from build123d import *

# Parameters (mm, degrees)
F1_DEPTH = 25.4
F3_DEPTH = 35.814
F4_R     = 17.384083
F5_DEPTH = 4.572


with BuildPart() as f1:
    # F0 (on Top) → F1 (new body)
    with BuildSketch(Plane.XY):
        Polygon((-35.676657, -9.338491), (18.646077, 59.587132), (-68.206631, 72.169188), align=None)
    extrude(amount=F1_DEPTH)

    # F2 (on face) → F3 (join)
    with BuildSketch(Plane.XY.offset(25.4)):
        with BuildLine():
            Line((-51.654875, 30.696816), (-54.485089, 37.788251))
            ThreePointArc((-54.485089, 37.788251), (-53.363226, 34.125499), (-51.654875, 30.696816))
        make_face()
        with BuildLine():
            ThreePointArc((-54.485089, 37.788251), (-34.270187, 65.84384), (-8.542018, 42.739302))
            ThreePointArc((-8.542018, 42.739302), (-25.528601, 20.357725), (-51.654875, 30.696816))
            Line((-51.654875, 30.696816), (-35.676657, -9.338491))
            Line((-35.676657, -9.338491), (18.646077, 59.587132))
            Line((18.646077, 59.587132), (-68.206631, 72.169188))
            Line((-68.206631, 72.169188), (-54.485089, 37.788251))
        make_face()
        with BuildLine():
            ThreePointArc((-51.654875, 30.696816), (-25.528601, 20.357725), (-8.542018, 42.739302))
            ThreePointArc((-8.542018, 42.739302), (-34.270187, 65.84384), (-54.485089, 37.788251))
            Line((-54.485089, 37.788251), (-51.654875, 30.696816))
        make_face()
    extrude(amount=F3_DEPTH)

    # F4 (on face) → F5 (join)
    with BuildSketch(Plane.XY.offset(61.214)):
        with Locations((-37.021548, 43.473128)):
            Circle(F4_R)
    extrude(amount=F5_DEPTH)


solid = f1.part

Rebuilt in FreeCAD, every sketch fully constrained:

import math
import FreeCAD as App
import Part
import Sketcher
from FreeCAD import Vector
Q = App.Units.Quantity


def add_polygon(sketch, points):
    """Adds a closed chain of lines whose ends are joined by coincident constraints."""
    first, n = sketch.GeometryCount, len(points)
    for a, b in zip(points, points[1:] + points[:1]):
        sketch.addGeometry(Part.LineSegment(App.Vector(*a, 0), App.Vector(*b, 0)), False)
    for i in range(n):
        sketch.addConstraint(Sketcher.Constraint("Coincident", first + i, 2, first + (i + 1) % n, 1))

doc = App.newDocument("Part")
body = doc.addObject("PartDesign::Body", "Body")

# Sketch on XY plane
sketch1 = doc.addObject("Sketcher::SketchObject", "Sketch")
body.addObject(sketch1)
sketch1.AttachmentSupport = (doc.XY_Plane, [""])
sketch1.MapMode = "FlatFace"
add_polygon(sketch1, [(-36, -9), (19, 60), (-68, 72)])  # lines 0-2
sketch1.addConstraint([
    Sketcher.Constraint("Equal", 0, 1),
    Sketcher.Constraint("Equal", 1, 2),
    Sketcher.Constraint("DistanceY", -1, 1, 0, 2, 59.587132),
    Sketcher.Constraint("DistanceX", 1, 2, -1, 1, 68.206631),
    Sketcher.Constraint("DistanceY", -1, 1, 1, 2, 72.169188),
    Sketcher.Constraint("DistanceY", 2, 2, -1, 1, 9.338491),
])
pad1 = doc.addObject("PartDesign::Pad", "Pad")
body.addObject(pad1)
pad1.Profile = sketch1
pad1.Length = Q("1 in")

# Sketch on XY plane
sketch2 = doc.addObject("Sketcher::SketchObject", "Sketch001")
body.addObject(sketch2)
sketch2.AttachmentSupport = (doc.XY_Plane, [""])
sketch2.MapMode = "FlatFace"
sketch2.AttachmentOffset = App.Placement(Vector(0, 0, 1 * 25.4), App.Rotation())
sketch2.addGeometry([
    Part.ArcOfCircle(Part.Circle(Vector(-32, 43, 0), Vector(0, 0, 1), 23), math.radians(-167.7), math.radians(-148.79)),  # 0
    Part.LineSegment(Vector(-52, 31, 0), Vector(-36, -9, 0)),  # 1
    Part.LineSegment(Vector(-36, -9, 0), Vector(19, 60, 0)),  # 2
    Part.LineSegment(Vector(19, 60, 0), Vector(-68, 72, 0)),  # 3
    Part.LineSegment(Vector(-68, 72, 0), Vector(-54, 38, 0)),  # 4
], False)
sketch2.addConstraint([
    Sketcher.Constraint("Coincident", 0, 2, 1, 1),
    Sketcher.Constraint("Coincident", 1, 2, 2, 1),
    Sketcher.Constraint("Coincident", 2, 2, 3, 1),
    Sketcher.Constraint("Coincident", 3, 2, 4, 1),
    Sketcher.Constraint("Coincident", 4, 2, 0, 1),
    Sketcher.Constraint("Parallel", 1, 4),
    Sketcher.Constraint("Equal", 2, 3),
    Sketcher.Constraint("Distance", 4, Q("1.4574001 in")),
    Sketcher.Constraint("Radius", 0, 23.238302),
    Sketcher.Constraint("DistanceY", -1, 1, 0, 3, 42.739298),
    Sketcher.Constraint("DistanceY", 1, 2, -1, 1, 9.338491),
    Sketcher.Constraint("DistanceY", -1, 1, 2, 2, 59.587132),
    Sketcher.Constraint("DistanceX", 3, 2, -1, 1, 68.206631),
    Sketcher.Constraint("DistanceY", -1, 1, 3, 2, 72.169188),
    Sketcher.Constraint("DistanceX", 4, 2, -1, 1, 54.485089),
    Sketcher.Constraint("DistanceX", 0, 2, 0, 3, 19.874539),
])
pad2 = doc.addObject("PartDesign::Pad", "Pad001")
body.addObject(pad2)
pad2.Profile = sketch2
pad2.Length = Q("1.41 in")

# Sketch on XY plane
sketch3 = doc.addObject("Sketcher::SketchObject", "Sketch002")
body.addObject(sketch3)
sketch3.AttachmentSupport = (doc.XY_Plane, [""])
sketch3.MapMode = "FlatFace"
sketch3.AttachmentOffset = App.Placement(Vector(0, 0, 2.41 * 25.4), App.Rotation())
sketch3.addGeometry(Part.Circle(Vector(-37, 43, 0), Vector(0, 0, 1), 17), False)
sketch3.addConstraint([
    Sketcher.Constraint("Diameter", 0, 34.768166),
    Sketcher.Constraint("DistanceX", 0, 3, -1, 1, 37.021548),
    Sketcher.Constraint("DistanceY", -1, 1, 0, 3, 43.473128),
])
pad3 = doc.addObject("PartDesign::Pad", "Pad002")
body.addObject(pad3)
pad3.Profile = sketch3
pad3.Length = Q("0.18 in")

doc.recompute()
